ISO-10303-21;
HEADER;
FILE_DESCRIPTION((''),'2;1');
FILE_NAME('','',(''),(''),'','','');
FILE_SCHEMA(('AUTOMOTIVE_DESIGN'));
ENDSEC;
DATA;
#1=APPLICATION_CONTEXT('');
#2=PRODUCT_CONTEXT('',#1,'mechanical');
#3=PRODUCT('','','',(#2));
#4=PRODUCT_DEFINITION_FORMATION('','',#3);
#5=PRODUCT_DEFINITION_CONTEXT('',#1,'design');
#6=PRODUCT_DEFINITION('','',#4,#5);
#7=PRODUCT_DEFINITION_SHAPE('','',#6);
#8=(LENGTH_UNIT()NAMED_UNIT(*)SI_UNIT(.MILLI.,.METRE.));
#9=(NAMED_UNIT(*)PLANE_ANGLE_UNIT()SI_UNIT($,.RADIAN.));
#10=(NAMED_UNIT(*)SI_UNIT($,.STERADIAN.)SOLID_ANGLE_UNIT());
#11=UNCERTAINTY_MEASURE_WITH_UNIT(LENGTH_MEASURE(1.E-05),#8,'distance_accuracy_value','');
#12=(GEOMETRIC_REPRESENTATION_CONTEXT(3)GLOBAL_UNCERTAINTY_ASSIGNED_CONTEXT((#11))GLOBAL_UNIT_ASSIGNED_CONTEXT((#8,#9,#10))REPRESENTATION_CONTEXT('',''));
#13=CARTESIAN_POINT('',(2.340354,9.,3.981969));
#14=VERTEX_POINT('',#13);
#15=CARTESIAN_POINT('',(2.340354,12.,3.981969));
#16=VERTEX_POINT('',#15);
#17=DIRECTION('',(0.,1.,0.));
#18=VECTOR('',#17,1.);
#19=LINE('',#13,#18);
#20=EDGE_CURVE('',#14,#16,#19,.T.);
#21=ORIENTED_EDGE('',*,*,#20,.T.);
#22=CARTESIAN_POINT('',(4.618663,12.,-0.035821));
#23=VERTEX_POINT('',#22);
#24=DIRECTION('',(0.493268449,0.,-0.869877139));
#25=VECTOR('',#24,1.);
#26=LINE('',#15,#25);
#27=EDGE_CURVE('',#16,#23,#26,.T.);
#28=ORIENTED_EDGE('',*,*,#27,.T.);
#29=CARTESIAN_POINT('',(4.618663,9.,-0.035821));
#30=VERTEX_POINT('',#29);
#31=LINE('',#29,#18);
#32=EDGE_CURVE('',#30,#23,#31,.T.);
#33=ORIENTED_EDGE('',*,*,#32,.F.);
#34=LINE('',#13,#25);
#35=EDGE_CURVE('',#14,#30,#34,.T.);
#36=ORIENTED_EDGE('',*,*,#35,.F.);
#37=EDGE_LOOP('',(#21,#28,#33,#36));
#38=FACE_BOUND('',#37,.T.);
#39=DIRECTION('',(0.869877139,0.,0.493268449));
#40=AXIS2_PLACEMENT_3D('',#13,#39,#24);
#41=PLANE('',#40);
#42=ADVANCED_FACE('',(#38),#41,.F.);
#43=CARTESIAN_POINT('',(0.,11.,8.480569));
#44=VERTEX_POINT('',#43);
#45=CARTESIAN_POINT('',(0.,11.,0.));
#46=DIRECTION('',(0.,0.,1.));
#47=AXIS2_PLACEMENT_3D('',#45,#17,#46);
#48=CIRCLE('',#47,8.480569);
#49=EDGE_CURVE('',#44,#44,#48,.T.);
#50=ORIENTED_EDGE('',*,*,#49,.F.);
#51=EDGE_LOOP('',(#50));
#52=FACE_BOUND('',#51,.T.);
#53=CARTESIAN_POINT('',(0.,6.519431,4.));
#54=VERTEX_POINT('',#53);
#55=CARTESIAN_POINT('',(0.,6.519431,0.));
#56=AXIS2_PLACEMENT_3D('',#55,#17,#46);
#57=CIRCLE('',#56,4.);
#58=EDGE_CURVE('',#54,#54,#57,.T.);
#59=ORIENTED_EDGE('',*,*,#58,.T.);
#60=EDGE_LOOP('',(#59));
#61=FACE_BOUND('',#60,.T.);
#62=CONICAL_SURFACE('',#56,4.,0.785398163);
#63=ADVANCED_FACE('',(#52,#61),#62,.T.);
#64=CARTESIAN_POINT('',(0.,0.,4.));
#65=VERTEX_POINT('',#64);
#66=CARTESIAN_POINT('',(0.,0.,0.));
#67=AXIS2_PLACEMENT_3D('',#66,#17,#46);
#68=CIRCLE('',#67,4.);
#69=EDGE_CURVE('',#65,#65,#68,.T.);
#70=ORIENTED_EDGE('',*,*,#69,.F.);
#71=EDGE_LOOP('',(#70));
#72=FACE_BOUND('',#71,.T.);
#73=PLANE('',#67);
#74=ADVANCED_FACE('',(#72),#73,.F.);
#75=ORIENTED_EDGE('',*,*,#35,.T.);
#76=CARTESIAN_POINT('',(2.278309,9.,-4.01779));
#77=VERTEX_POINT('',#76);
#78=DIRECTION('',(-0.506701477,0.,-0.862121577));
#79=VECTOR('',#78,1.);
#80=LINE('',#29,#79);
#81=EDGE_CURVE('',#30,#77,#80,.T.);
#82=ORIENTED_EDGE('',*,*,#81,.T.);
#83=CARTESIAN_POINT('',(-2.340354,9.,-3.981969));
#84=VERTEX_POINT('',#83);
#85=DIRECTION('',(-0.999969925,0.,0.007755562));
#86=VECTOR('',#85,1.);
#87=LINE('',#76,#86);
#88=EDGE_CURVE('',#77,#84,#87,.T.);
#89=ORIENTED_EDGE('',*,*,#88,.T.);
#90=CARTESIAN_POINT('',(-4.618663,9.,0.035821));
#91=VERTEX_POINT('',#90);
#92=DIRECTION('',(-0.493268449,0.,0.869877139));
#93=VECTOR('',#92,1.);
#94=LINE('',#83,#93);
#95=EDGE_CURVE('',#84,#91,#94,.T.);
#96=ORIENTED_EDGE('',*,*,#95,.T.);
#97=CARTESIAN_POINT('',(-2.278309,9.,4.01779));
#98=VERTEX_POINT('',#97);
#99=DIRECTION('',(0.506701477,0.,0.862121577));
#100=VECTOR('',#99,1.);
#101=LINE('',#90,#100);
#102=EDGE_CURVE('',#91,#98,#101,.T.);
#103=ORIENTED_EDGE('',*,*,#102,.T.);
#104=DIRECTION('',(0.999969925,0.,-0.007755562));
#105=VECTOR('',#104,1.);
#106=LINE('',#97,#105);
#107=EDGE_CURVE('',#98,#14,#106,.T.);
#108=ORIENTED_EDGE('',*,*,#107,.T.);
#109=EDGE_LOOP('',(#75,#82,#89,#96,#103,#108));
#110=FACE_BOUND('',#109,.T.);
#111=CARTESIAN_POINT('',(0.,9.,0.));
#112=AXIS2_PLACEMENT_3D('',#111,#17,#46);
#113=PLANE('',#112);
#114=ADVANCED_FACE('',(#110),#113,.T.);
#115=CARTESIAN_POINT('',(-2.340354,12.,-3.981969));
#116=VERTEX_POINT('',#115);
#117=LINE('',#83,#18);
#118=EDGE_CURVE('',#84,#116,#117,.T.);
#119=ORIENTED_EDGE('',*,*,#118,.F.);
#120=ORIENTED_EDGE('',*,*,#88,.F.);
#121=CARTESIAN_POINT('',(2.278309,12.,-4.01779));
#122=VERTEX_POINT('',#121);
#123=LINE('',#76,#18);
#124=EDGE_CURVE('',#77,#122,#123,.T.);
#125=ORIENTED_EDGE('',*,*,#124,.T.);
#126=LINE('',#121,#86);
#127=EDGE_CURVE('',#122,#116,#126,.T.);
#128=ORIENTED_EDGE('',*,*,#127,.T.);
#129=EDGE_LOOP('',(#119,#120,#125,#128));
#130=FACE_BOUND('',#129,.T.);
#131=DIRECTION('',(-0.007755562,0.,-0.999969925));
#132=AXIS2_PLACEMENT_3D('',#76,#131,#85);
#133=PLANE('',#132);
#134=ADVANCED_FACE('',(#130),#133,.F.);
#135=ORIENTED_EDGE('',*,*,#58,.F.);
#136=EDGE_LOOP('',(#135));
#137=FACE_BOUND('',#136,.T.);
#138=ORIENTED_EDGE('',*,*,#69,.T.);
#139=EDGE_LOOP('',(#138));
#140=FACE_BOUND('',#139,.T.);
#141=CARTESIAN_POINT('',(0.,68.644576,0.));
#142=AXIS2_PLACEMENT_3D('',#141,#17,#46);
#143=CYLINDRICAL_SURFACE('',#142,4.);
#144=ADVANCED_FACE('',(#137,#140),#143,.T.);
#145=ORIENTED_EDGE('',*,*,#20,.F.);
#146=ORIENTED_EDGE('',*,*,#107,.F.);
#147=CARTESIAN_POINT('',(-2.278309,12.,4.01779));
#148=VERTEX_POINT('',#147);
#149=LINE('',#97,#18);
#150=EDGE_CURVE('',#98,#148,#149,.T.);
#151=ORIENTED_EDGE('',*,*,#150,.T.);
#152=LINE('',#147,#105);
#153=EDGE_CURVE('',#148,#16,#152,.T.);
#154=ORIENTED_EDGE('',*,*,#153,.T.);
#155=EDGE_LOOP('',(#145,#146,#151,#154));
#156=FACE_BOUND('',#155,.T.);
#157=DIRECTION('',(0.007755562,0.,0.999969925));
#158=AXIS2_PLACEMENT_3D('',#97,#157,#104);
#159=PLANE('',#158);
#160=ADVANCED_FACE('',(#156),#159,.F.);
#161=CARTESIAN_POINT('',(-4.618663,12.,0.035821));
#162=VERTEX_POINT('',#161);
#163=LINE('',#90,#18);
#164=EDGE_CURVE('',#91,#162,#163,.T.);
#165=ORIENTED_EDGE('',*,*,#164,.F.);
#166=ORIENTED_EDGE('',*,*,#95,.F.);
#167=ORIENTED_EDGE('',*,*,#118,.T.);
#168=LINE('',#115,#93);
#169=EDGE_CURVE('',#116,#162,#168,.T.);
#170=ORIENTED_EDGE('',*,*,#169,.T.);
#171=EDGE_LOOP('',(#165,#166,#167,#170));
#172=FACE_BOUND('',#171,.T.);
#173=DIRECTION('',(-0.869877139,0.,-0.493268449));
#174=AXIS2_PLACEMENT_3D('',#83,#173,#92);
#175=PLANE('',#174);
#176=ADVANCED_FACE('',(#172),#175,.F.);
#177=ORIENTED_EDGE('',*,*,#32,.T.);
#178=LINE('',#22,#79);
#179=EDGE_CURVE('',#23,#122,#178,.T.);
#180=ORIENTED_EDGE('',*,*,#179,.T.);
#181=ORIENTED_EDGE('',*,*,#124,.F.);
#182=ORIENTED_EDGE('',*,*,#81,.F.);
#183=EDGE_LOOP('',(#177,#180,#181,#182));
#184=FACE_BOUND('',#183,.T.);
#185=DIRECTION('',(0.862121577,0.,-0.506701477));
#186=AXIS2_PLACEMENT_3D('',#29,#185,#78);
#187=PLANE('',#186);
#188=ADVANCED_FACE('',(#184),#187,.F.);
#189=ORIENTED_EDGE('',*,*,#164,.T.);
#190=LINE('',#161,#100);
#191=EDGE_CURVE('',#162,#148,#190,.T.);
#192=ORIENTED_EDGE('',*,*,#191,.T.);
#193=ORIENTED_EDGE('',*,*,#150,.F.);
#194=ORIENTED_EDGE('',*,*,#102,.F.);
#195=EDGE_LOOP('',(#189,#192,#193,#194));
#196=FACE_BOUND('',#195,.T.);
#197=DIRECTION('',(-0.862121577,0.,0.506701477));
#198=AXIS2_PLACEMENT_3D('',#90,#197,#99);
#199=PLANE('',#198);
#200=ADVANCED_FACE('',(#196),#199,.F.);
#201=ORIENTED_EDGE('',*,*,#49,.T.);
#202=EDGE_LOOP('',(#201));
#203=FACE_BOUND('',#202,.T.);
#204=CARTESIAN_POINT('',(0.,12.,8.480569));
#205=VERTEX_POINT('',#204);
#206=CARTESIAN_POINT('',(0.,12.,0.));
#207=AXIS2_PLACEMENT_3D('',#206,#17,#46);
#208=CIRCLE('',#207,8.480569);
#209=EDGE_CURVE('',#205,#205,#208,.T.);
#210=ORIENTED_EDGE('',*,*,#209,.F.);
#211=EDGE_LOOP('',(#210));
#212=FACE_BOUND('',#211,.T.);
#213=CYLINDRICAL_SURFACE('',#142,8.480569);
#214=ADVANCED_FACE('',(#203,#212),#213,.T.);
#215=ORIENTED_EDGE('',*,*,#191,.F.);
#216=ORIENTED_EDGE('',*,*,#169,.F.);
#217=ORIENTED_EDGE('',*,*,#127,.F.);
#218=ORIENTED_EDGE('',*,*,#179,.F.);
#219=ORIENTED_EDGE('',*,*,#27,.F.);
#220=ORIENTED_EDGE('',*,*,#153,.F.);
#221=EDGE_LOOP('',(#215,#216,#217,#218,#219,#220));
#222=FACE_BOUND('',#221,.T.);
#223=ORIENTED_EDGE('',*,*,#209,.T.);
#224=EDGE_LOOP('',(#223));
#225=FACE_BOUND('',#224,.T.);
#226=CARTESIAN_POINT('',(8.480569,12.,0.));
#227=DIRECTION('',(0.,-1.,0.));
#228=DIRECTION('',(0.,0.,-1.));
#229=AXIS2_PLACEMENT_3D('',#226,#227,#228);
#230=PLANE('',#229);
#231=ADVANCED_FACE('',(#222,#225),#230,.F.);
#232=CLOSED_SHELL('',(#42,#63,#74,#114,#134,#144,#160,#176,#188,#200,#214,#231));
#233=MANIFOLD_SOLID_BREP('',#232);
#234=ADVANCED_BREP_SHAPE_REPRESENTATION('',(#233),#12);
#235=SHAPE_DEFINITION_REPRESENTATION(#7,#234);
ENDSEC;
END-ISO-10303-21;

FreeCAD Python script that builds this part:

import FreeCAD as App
import Part
import Sketcher

V = App.Vector
Q = App.Units.Quantity


def add_polygon(sketch, points):
    """Adds a closed chain of lines whose ends are joined by coincident constraints."""
    first, n = sketch.GeometryCount, len(points)
    for a, b in zip(points, points[1:] + points[:1]):
        sketch.addGeometry(Part.LineSegment(App.Vector(*a, 0), App.Vector(*b, 0)), False)
    for i in range(n):
        sketch.addConstraint(Sketcher.Constraint("Coincident", first + i, 2, first + (i + 1) % n, 1))

doc = App.newDocument("Part")
params = doc.addObject("Spreadsheet::Sheet", "Params")
for row, (alias, value) in enumerate([
    ("sketch1_width", "4 mm"),
    ("sketch1_height", "1 mm"),
    ("sketch1_height2", "12 mm"),
    ("revolution_angle", "360 deg"),
    ("pocket1_length", "3 mm"),
], start=1):
    params.set(f"A{row}", alias)
    params.set(f"B{row}", "=" + value)
    params.setAlias(f"B{row}", alias)

body = doc.addObject("PartDesign::Body", "Body")

# Sketch on XY plane
sketch1 = body.newObject("Sketcher::SketchObject", "Sketch")
sketch1.AttachmentSupport = (doc.getObject("XY_Plane"), [""])
sketch1.MapMode = "FlatFace"
add_polygon(sketch1, [(0, 0), (4, 0), (4, 6.519431), (8.480569, 11), (8.480569, 12), (0, 12)])  # lines 0-5
sketch1.addConstraint([
    Sketcher.Constraint("Horizontal", 0),
    Sketcher.Constraint("Vertical", 1),
    Sketcher.Constraint("Vertical", 3),
    Sketcher.Constraint("Horizontal", 4),
    Sketcher.Constraint("Vertical", 5),
    Sketcher.Constraint("Coincident", 5, 2, -1, 1),
    Sketcher.Constraint("DistanceX", 0, 1, 0, 2, 4.0),
    Sketcher.Constraint("DistanceY", 3, 1, 3, 2, 1.0),
    Sketcher.Constraint("DistanceY", 5, 2, 5, 1, 12.0),
    Sketcher.Constraint("Angle", 2, Q("45 deg")),
    Sketcher.Constraint("DistanceX", 4, 2, 4, 1, 8.480569),
])
sketch1.setExpression("Constraints[12]", "Params.sketch1_width")
sketch1.setExpression("Constraints[13]", "Params.sketch1_height")
sketch1.setExpression("Constraints[14]", "Params.sketch1_height2")
revolution = body.newObject("PartDesign::Revolution", "Revolution")
revolution.Profile = sketch1
revolution.ReferenceAxis = (sketch1, ["V_Axis"])
revolution.setExpression("Angle", "Params.revolution_angle")

# Sketch on XZ plane
sketch2 = body.newObject("Sketcher::SketchObject", "Sketch001")
sketch2.AttachmentSupport = (doc.getObject("XZ_Plane"), [""])
sketch2.MapMode = "FlatFace"
sketch2.AttachmentOffset = App.Placement(V(0, 0, -12), App.Rotation())
add_polygon(sketch2, [(2.340354, 3.981969), (4.618663, -0.035821), (2.278309, -4.01779), (-2.340354, -3.981969), (-4.618663, 0.035821), (-2.278309, 4.01779)])  # lines 0-5
sketch2.addConstraint([
    Sketcher.Constraint("Symmetric", 0, 2, 3, 2, -1, 1),
    Sketcher.Constraint("Symmetric", 1, 2, 4, 2, -1, 1),
    Sketcher.Constraint("Symmetric", 2, 2, 5, 2, -1, 1),
    Sketcher.Constraint("Equal", 0, 1),
    Sketcher.Constraint("Equal", 1, 2),
    Sketcher.Constraint("DistanceY", 0, 2, -1, 1, 0.035821),
    Sketcher.Constraint("DistanceX", -1, 1, 1, 2, 2.278309),
    Sketcher.Constraint("DistanceY", 1, 2, -1, 1, 4.01779),
    Sketcher.Constraint("DistanceY", 2, 2, -1, 1, 3.981969),
])
pocket1 = body.newObject("PartDesign::Pocket", "Pocket")
pocket1.Profile = sketch2
pocket1.setExpression("Length", "Params.pocket1_length")
pocket1.Reversed = True

doc.recompute()
